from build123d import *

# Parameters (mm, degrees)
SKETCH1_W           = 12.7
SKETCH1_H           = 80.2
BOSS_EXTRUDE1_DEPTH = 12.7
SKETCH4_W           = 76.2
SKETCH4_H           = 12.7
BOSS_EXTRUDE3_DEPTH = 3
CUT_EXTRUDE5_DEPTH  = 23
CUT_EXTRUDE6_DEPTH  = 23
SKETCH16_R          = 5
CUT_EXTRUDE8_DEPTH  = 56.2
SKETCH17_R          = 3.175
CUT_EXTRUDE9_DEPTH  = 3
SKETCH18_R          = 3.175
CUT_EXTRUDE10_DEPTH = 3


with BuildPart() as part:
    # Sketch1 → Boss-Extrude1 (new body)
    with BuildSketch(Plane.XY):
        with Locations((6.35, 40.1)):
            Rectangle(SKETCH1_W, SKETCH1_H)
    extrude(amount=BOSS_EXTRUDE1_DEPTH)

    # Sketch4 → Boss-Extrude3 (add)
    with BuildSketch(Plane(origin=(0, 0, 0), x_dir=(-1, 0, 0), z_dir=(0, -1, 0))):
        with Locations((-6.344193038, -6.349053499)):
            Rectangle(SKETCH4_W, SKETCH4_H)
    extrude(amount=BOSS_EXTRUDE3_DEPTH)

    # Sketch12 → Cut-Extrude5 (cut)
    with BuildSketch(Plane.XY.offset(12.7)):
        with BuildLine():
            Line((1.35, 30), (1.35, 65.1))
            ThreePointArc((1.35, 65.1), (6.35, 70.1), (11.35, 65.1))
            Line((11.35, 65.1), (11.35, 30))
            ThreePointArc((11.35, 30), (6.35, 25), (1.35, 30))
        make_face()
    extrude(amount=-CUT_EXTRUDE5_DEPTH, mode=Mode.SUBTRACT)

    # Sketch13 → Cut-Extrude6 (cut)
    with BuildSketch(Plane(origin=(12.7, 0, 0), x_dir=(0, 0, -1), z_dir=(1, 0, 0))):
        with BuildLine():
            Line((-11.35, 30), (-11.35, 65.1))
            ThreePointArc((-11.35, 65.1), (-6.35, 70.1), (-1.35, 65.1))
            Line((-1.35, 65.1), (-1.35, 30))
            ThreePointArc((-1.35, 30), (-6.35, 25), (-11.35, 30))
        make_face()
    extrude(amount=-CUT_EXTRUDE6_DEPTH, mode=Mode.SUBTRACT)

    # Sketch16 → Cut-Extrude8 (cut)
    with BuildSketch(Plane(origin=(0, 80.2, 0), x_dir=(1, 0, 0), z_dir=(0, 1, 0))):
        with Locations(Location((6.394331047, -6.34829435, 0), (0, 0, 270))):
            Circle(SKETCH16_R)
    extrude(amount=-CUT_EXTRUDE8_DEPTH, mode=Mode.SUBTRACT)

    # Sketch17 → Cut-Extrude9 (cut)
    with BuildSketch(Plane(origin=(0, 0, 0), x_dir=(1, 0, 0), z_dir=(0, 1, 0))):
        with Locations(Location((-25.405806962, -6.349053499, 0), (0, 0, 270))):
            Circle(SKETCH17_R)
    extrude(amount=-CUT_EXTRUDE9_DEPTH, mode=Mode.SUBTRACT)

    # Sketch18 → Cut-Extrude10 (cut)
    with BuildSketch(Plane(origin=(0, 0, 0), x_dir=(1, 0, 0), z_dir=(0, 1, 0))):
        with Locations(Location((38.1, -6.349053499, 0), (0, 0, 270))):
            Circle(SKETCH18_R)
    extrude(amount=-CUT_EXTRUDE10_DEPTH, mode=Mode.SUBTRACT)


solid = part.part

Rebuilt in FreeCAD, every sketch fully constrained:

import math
import FreeCAD as App
import Part
import Sketcher
from FreeCAD import Vector

doc = App.newDocument("Part")
body = doc.addObject("PartDesign::Body", "Body")

# Sketch on XY plane
sketch1 = doc.addObject("Sketcher::SketchObject", "Sketch")
body.addObject(sketch1)
sketch1.AttachmentSupport = (doc.XY_Plane, [""])
sketch1.MapMode = "FlatFace"
sketch1.addGeometry([
    Part.LineSegment(Vector(0, 80, 0), Vector(0, 0, 0)),
    Part.LineSegment(Vector(0, 0, 0), Vector(13, 0, 0)),
    Part.LineSegment(Vector(13, 0, 0), Vector(13, 80, 0)),
    Part.LineSegment(Vector(13, 80, 0), Vector(0, 80, 0)),
], False)
sketch1.addConstraint([
    Sketcher.Constraint("Coincident", 0, 2, 1, 1),
    Sketcher.Constraint("Coincident", 1, 2, 2, 1),
    Sketcher.Constraint("Coincident", 2, 2, 3, 1),
    Sketcher.Constraint("Coincident", 3, 2, 0, 1),
    Sketcher.Constraint("Vertical", 0),
    Sketcher.Constraint("Horizontal", 1),
    Sketcher.Constraint("Vertical", 2),
    Sketcher.Constraint("Horizontal", 3),
    Sketcher.Constraint("Coincident", 0, 2, -1, 1),
    Sketcher.Constraint("DistanceX", 1, 1, 1, 2, 12.7),
    Sketcher.Constraint("DistanceY", 0, 2, 0, 1, 80.2),
])
pad1 = doc.addObject("PartDesign::Pad", "Pad")
body.addObject(pad1)
pad1.Profile = sketch1
pad1.Length = 12.7

# Sketch on XZ plane
sketch2 = doc.addObject("Sketcher::SketchObject", "Sketch001")
body.addObject(sketch2)
sketch2.AttachmentSupport = (doc.XZ_Plane, [""])
sketch2.MapMode = "FlatFace"
sketch2.addGeometry([
    Part.LineSegment(Vector(44, 0, 0), Vector(44, 13, 0)),
    Part.LineSegment(Vector(44, 13, 0), Vector(-32, 13, 0)),
    Part.LineSegment(Vector(-32, 13, 0), Vector(-32, 0, 0)),
    Part.LineSegment(Vector(-32, 0, 0), Vector(44, 0, 0)),
], False)
sketch2.addConstraint([
    Sketcher.Constraint("Coincident", 0, 2, 1, 1),
    Sketcher.Constraint("Coincident", 1, 2, 2, 1),
    Sketcher.Constraint("Coincident", 2, 2, 3, 1),
    Sketcher.Constraint("Coincident", 3, 2, 0, 1),
    Sketcher.Constraint("Vertical", 0),
    Sketcher.Constraint("Horizontal", 1),
    Sketcher.Constraint("Vertical", 2),
    Sketcher.Constraint("Horizontal", 3),
    Sketcher.Constraint("DistanceX", 1, 2, 1, 1, 76.2),
    Sketcher.Constraint("DistanceY", 0, 1, 0, 2, 12.7),
    Sketcher.Constraint("DistanceX", -1, 1, 0, 2, 44.444193),
    Sketcher.Constraint("DistanceY", -1, 1, 0, 2, 12.699053),
])
pad2 = doc.addObject("PartDesign::Pad", "Pad001")
body.addObject(pad2)
pad2.Profile = sketch2
pad2.Length = 3

# Sketch on XY plane
sketch3 = doc.addObject("Sketcher::SketchObject", "Sketch002")
body.addObject(sketch3)
sketch3.AttachmentSupport = (doc.XY_Plane, [""])
sketch3.MapMode = "FlatFace"
sketch3.AttachmentOffset = App.Placement(Vector(0, 0, 12.7), App.Rotation())
sketch3.addGeometry([
    Part.LineSegment(Vector(1, 65, 0), Vector(1, 30, 0)),
    Part.ArcOfCircle(Part.Circle(Vector(6, 30, 0), Vector(0, 0, 1), 5), math.radians(180), math.radians(360)),
    Part.LineSegment(Vector(11, 30, 0), Vector(11, 65, 0)),
    Part.ArcOfCircle(Part.Circle(Vector(6, 65, 0), Vector(0, 0, 1), 5), math.radians(0), math.radians(180)),
], False)
sketch3.addConstraint([
    Sketcher.Constraint("Tangent", 0, 2, 1, 1),
    Sketcher.Constraint("Tangent", 1, 2, 2, 1),
    Sketcher.Constraint("Tangent", 2, 2, 3, 1),
    Sketcher.Constraint("Tangent", 3, 2, 0, 1),
    Sketcher.Constraint("Vertical", 0),
    Sketcher.Constraint("Vertical", 2),
    Sketcher.Constraint("Radius", 1, 5.0),
    Sketcher.Constraint("DistanceY", 0, 2, 0, 1, 35.1),
    Sketcher.Constraint("DistanceY", -1, 1, 1, 3, 30.0),
    Sketcher.Constraint("DistanceX", -1, 1, 1, 3, 6.35),
])
pocket1 = doc.addObject("PartDesign::Pocket", "Pocket")
body.addObject(pocket1)
pocket1.Profile = sketch3
pocket1.Length = 23

# Sketch on YZ plane
sketch4 = doc.addObject("Sketcher::SketchObject", "Sketch003")
body.addObject(sketch4)
sketch4.AttachmentSupport = (doc.YZ_Plane, [""])
sketch4.MapMode = "FlatFace"
sketch4.AttachmentOffset = App.Placement(Vector(0, 0, 12.7), App.Rotation())
sketch4.addGeometry([
    Part.LineSegment(Vector(65, 11, 0), Vector(30, 11, 0)),
    Part.ArcOfCircle(Part.Circle(Vector(30, 6, 0), Vector(0, 0, 1), 5), math.radians(90), math.radians(270)),
    Part.LineSegment(Vector(30, 1, 0), Vector(65, 1, 0)),
    Part.ArcOfCircle(Part.Circle(Vector(65, 6, 0), Vector(0, 0, 1), 5), math.radians(-90), math.radians(90)),
], False)
sketch4.addConstraint([
    Sketcher.Constraint("Tangent", 0, 2, 1, 1),
    Sketcher.Constraint("Tangent", 1, 2, 2, 1),
    Sketcher.Constraint("Tangent", 2, 2, 3, 1),
    Sketcher.Constraint("Tangent", 3, 2, 0, 1),
    Sketcher.Constraint("Horizontal", 0),
    Sketcher.Constraint("Horizontal", 2),
    Sketcher.Constraint("Radius", 1, 5.0),
    Sketcher.Constraint("DistanceX", 0, 2, 0, 1, 35.1),
    Sketcher.Constraint("DistanceX", -1, 1, 1, 3, 30.0),
    Sketcher.Constraint("DistanceY", -1, 1, 1, 3, 6.35),
])
pocket2 = doc.addObject("PartDesign::Pocket", "Pocket001")
body.addObject(pocket2)
pocket2.Profile = sketch4
pocket2.Length = 23

# Sketch on XZ plane
sketch5 = doc.addObject("Sketcher::SketchObject", "Sketch004")
body.addObject(sketch5)
sketch5.AttachmentSupport = (doc.XZ_Plane, [""])
sketch5.MapMode = "FlatFace"
sketch5.AttachmentOffset = App.Placement(Vector(0, 0, -80.2), App.Rotation())
sketch5.addGeometry(Part.Circle(Vector(6, 6, 0), Vector(0, 0, 1), 5), False)
sketch5.addConstraint([
    Sketcher.Constraint("Diameter", 0, 10.0),
    Sketcher.Constraint("DistanceX", -1, 1, 0, 3, 6.394331),
    Sketcher.Constraint("DistanceY", -1, 1, 0, 3, 6.348294),
])
pocket3 = doc.addObject("PartDesign::Pocket", "Pocket002")
body.addObject(pocket3)
pocket3.Profile = sketch5
pocket3.Length = 56.2
pocket3.Reversed = True

# Sketch on XZ plane
sketch6 = doc.addObject("Sketcher::SketchObject", "Sketch005")
body.addObject(sketch6)
sketch6.AttachmentSupport = (doc.XZ_Plane, [""])
sketch6.MapMode = "FlatFace"
sketch6.addGeometry(Part.Circle(Vector(-25.4, 6.3, 0), Vector(0, 0, 1), 3.2), False)
sketch6.addConstraint([
    Sketcher.Constraint("Diameter", 0, 6.35),
    Sketcher.Constraint("DistanceX", 0, 3, -1, 1, 25.405807),
    Sketcher.Constraint("DistanceY", -1, 1, 0, 3, 6.349053),
])
pocket4 = doc.addObject("PartDesign::Pocket", "Pocket003")
body.addObject(pocket4)
pocket4.Profile = sketch6
pocket4.Length = 3
pocket4.Reversed = True

# Sketch on XZ plane
sketch7 = doc.addObject("Sketcher::SketchObject", "Sketch006")
body.addObject(sketch7)
sketch7.AttachmentSupport = (doc.XZ_Plane, [""])
sketch7.MapMode = "FlatFace"
sketch7.addGeometry(Part.Circle(Vector(38.1, 6.3, 0), Vector(0, 0, 1), 3.2), False)
sketch7.addConstraint([
    Sketcher.Constraint("Diameter", 0, 6.35),
    Sketcher.Constraint("DistanceX", -1, 1, 0, 3, 38.1),
    Sketcher.Constraint("DistanceY", -1, 1, 0, 3, 6.349053),
])
pocket5 = doc.addObject("PartDesign::Pocket", "Pocket004")
body.addObject(pocket5)
pocket5.Profile = sketch7
pocket5.Length = 3
pocket5.Reversed = True

doc.recompute()
